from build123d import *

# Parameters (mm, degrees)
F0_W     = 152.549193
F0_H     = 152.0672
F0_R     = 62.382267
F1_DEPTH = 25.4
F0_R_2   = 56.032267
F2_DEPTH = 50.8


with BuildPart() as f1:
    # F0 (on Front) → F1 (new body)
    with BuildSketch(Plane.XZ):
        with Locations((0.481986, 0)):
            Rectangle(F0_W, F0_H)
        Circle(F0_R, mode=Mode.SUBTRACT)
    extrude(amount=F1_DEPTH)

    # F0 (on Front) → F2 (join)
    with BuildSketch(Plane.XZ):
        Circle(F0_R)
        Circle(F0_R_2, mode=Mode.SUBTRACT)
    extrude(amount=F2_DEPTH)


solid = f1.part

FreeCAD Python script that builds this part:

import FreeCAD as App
import Part
import Sketcher

V = App.Vector
Q = App.Units.Quantity


def add_polygon(sketch, points):
    """Adds a closed chain of lines whose ends are joined by coincident constraints."""
    first, n = sketch.GeometryCount, len(points)
    for a, b in zip(points, points[1:] + points[:1]):
        sketch.addGeometry(Part.LineSegment(App.Vector(*a, 0), App.Vector(*b, 0)), False)
    for i in range(n):
        sketch.addConstraint(Sketcher.Constraint("Coincident", first + i, 2, first + (i + 1) % n, 1))

doc = App.newDocument("Part")
params = doc.addObject("Spreadsheet::Sheet", "Params")
for row, (alias, value) in enumerate([
    ("pad1_length", "1 in"),
    ("pad2_length", "2 in"),
], start=1):
    params.set(f"A{row}", alias)
    params.set(f"B{row}", "=" + value)
    params.setAlias(f"B{row}", alias)

body = doc.addObject("PartDesign::Body", "Body")

sketch1 = body.newObject("Sketcher::SketchObject", "Sketch")
sketch1.AttachmentSupport = (doc.getObject("XZ_Plane"), [""])
sketch1.MapMode = "FlatFace"
add_polygon(sketch1, [(-76, 76), (-76, -76), (77, -76), (77, 76)])
sketch1.addGeometry(Part.Circle(V(0, 0, 0), V(0, 0, 1), 62), False)
sketch1.addConstraint(Sketcher.Constraint("Vertical", 0))
sketch1.addConstraint(Sketcher.Constraint("Horizontal", 1))
sketch1.addConstraint(Sketcher.Constraint("Vertical", 2))
sketch1.addConstraint(Sketcher.Constraint("Horizontal", 3))
sketch1.addConstraint(Sketcher.Constraint("Coincident", 4, 3, -1, 1))
sketch1.addConstraint(Sketcher.Constraint("Diameter", 4, Q("124.764534 mm")))
sketch1.addConstraint(Sketcher.Constraint("DistanceY", 0, 2, 0, 1, Q("152.0672 mm")))
sketch1.addConstraint(Sketcher.Constraint("DistanceY", 0, 2, -1, 1, Q("76.0336 mm")))
sketch1.addConstraint(Sketcher.Constraint("DistanceX", 1, 1, 1, 2, Q("152.549193 mm")))
sketch1.addConstraint(Sketcher.Constraint("DistanceX", 0, 2, -1, 1, Q("75.79261 mm")))
pad1 = body.newObject("PartDesign::Pad", "Pad")
pad1.Profile = sketch1
pad1.setExpression("Length", "Params.pad1_length")

sketch2 = body.newObject("Sketcher::SketchObject", "Sketch001")
sketch2.AttachmentSupport = (doc.getObject("XZ_Plane"), [""])
sketch2.MapMode = "FlatFace"
sketch2.addGeometry(Part.Circle(V(0, 0, 0), V(0, 0, 1), 62), False)
sketch2.addGeometry(Part.Circle(V(0, 0, 0), V(0, 0, 1), 56), False)
sketch2.addConstraint(Sketcher.Constraint("Coincident", 0, 3, -1, 1))
sketch2.addConstraint(Sketcher.Constraint("Coincident", 1, 3, -1, 1))
sketch2.addConstraint(Sketcher.Constraint("Diameter", 0, Q("124.764534 mm")))
sketch2.addConstraint(Sketcher.Constraint("Diameter", 1, Q("112.064534 mm")))
pad2 = body.newObject("PartDesign::Pad", "Pad001")
pad2.Profile = sketch2
pad2.setExpression("Length", "Params.pad2_length")

doc.recompute()
